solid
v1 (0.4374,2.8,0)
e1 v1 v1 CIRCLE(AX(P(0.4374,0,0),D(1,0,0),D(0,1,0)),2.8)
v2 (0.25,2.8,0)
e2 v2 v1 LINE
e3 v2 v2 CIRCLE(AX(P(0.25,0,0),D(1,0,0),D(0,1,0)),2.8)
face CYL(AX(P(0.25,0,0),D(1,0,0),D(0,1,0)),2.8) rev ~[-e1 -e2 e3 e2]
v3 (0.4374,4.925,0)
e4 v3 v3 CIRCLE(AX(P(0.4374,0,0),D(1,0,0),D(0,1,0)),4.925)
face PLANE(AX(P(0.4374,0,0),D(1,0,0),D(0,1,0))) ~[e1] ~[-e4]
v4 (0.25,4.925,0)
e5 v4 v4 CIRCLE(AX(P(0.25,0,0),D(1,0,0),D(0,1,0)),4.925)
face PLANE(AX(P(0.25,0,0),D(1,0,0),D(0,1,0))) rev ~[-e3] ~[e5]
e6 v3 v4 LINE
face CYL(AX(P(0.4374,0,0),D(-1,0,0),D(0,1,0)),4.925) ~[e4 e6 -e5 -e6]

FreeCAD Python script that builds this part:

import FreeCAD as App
import Part
import Sketcher


def add_polygon(sketch, points):
    """Adds a closed chain of lines whose ends are joined by coincident constraints."""
    first, n = sketch.GeometryCount, len(points)
    for a, b in zip(points, points[1:] + points[:1]):
        sketch.addGeometry(Part.LineSegment(App.Vector(*a, 0), App.Vector(*b, 0)), False)
    for i in range(n):
        sketch.addConstraint(Sketcher.Constraint("Coincident", first + i, 2, first + (i + 1) % n, 1))

doc = App.newDocument("Part")
body = doc.addObject("PartDesign::Body", "Body")

# Sketch on XY plane
sketch1 = doc.addObject("Sketcher::SketchObject", "Sketch")
body.addObject(sketch1)
sketch1.AttachmentSupport = (doc.XY_Plane, [""])
sketch1.MapMode = "FlatFace"
add_polygon(sketch1, [(0.25, 4.92), (0.25, 2.8), (0.44, 2.8), (0.44, 4.92)])  # lines 0-3
sketch1.addConstraint(Sketcher.Constraint("Vertical", 0))
sketch1.addConstraint(Sketcher.Constraint("Horizontal", 1))
sketch1.addConstraint(Sketcher.Constraint("Vertical", 2))
sketch1.addConstraint(Sketcher.Constraint("Horizontal", 3))
sketch1.addConstraint(Sketcher.Constraint("DistanceY", -1, 1, 0, 2, 2.8))
sketch1.addConstraint(Sketcher.Constraint("DistanceY", 0, 2, 0, 1, 2.125))
sketch1.addConstraint(Sketcher.Constraint("DistanceX", -1, 1, 0, 2, 0.25))
sketch1.addConstraint(Sketcher.Constraint("DistanceX", 1, 1, 1, 2, 0.1874))
revolution = doc.addObject("PartDesign::Revolution", "Revolution")
body.addObject(revolution)
revolution.Profile = sketch1
revolution.ReferenceAxis = (sketch1, ["H_Axis"])
revolution.Angle = 360

doc.recompute()
